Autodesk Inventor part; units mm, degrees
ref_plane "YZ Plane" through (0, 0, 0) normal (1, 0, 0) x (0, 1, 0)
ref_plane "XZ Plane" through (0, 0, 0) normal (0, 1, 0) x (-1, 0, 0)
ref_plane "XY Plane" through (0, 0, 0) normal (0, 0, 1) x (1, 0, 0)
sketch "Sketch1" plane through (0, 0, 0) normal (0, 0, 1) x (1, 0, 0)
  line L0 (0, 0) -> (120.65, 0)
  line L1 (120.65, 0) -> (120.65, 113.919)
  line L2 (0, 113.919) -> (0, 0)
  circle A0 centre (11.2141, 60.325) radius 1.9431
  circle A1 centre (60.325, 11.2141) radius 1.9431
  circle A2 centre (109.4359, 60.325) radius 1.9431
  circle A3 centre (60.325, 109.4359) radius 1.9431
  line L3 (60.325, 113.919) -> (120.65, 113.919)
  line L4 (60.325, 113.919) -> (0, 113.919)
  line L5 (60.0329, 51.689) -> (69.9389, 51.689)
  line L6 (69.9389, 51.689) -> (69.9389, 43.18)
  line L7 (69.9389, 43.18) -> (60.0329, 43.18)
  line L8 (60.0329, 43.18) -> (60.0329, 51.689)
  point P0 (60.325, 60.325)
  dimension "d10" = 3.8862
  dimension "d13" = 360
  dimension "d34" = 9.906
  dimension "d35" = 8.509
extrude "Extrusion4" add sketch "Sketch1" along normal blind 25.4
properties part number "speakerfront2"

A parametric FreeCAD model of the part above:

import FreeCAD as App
import Part
import Sketcher
Q = App.Units.Quantity

doc = App.newDocument("Part")
body = doc.addObject("PartDesign::Body", "Body")

# Sketch on XY plane
sketch1 = body.newObject("Sketcher::SketchObject", "Sketch")
sketch1.AttachmentSupport = (doc.getObject("XY_Plane"), [""])
sketch1.MapMode = "FlatFace"
sketch1.addGeometry(Part.LineSegment(App.Vector(0, 113.9, 0), App.Vector(0, 0, 0)), False)
sketch1.addGeometry(Part.LineSegment(App.Vector(0, 0, 0), App.Vector(120.7, 0, 0)), False)
sketch1.addGeometry(Part.LineSegment(App.Vector(120.7, 0, 0), App.Vector(120.7, 113.9, 0)), False)
sketch1.addGeometry(Part.LineSegment(App.Vector(120.7, 113.9, 0), App.Vector(0, 113.9, 0)), False)
sketch1.addGeometry(Part.Circle(App.Vector(60.3, 11.2, 0), App.Vector(0, 0, 1), 1.9), False)
sketch1.addGeometry(Part.LineSegment(App.Vector(60, 43.2, 0), App.Vector(60, 51.7, 0)), False)
sketch1.addGeometry(Part.LineSegment(App.Vector(60, 51.7, 0), App.Vector(69.9, 51.7, 0)), False)
sketch1.addGeometry(Part.LineSegment(App.Vector(69.9, 51.7, 0), App.Vector(69.9, 43.2, 0)), False)
sketch1.addGeometry(Part.LineSegment(App.Vector(69.9, 43.2, 0), App.Vector(60, 43.2, 0)), False)
sketch1.addGeometry(Part.Circle(App.Vector(11.2, 60.3, 0), App.Vector(0, 0, 1), 1.9), False)
sketch1.addGeometry(Part.Circle(App.Vector(109.4, 60.3, 0), App.Vector(0, 0, 1), 1.9), False)
sketch1.addGeometry(Part.Circle(App.Vector(60.3, 109.4, 0), App.Vector(0, 0, 1), 1.9), False)
sketch1.addConstraint(Sketcher.Constraint("Coincident", 0, 2, 1, 1))
sketch1.addConstraint(Sketcher.Constraint("Coincident", 1, 2, 2, 1))
sketch1.addConstraint(Sketcher.Constraint("Coincident", 2, 2, 3, 1))
sketch1.addConstraint(Sketcher.Constraint("Coincident", 3, 2, 0, 1))
sketch1.addConstraint(Sketcher.Constraint("Coincident", 5, 2, 6, 1))
sketch1.addConstraint(Sketcher.Constraint("Coincident", 6, 2, 7, 1))
sketch1.addConstraint(Sketcher.Constraint("Coincident", 7, 2, 8, 1))
sketch1.addConstraint(Sketcher.Constraint("Coincident", 8, 2, 5, 1))
sketch1.addConstraint(Sketcher.Constraint("Vertical", 0))
sketch1.addConstraint(Sketcher.Constraint("Horizontal", 1))
sketch1.addConstraint(Sketcher.Constraint("Vertical", 2))
sketch1.addConstraint(Sketcher.Constraint("Horizontal", 3))
sketch1.addConstraint(Sketcher.Constraint("Vertical", 5))
sketch1.addConstraint(Sketcher.Constraint("Horizontal", 6))
sketch1.addConstraint(Sketcher.Constraint("Vertical", 7))
sketch1.addConstraint(Sketcher.Constraint("Horizontal", 8))
sketch1.addConstraint(Sketcher.Constraint("Coincident", 0, 2, -1, 1))
sketch1.addConstraint(Sketcher.Constraint("Equal", 4, 9))
sketch1.addConstraint(Sketcher.Constraint("Equal", 9, 10))
sketch1.addConstraint(Sketcher.Constraint("Equal", 10, 11))
sketch1.addConstraint(Sketcher.Constraint("Horizontal", 9, 3, 10, 3))
sketch1.addConstraint(Sketcher.Constraint("Vertical", 4, 3, 11, 3))
sketch1.addConstraint(Sketcher.Constraint("Diameter", 4, Q("0.153 in")))
sketch1.addConstraint(Sketcher.Constraint("DistanceX", 6, 1, 6, 2, Q("0.39 in")))
sketch1.addConstraint(Sketcher.Constraint("DistanceY", 5, 1, 5, 2, Q("0.335 in")))
sketch1.addConstraint(Sketcher.Constraint("DistanceX", 1, 1, 1, 2, Q("4.75 in")))
sketch1.addConstraint(Sketcher.Constraint("DistanceY", -1, 1, 7, 2, Q("1.7 in")))
sketch1.addConstraint(Sketcher.Constraint("DistanceY", 0, 2, 0, 1, Q("4.485 in")))
sketch1.addConstraint(Sketcher.Constraint("DistanceY", 10, 3, 2, 2, Q("2.11 in")))
sketch1.addConstraint(Sketcher.Constraint("DistanceX", -1, 1, 4, 3, Q("2.375 in")))
sketch1.addConstraint(Sketcher.Constraint("DistanceX", 9, 3, 10, 3, Q("3.867 in")))
sketch1.addConstraint(Sketcher.Constraint("DistanceY", 4, 3, 11, 3, Q("3.867 in")))
sketch1.addConstraint(Sketcher.Constraint("DistanceX", 9, 3, 5, 2, Q("1.922 in")))
sketch1.addConstraint(Sketcher.Constraint("DistanceY", -1, 1, 4, 3, Q("0.4415 in")))
sketch1.addConstraint(Sketcher.Constraint("DistanceX", -1, 1, 9, 3, Q("0.4415 in")))
pad1 = body.newObject("PartDesign::Pad", "Pad")
pad1.Profile = sketch1
pad1.Length = Q("1 in")

doc.recompute()
